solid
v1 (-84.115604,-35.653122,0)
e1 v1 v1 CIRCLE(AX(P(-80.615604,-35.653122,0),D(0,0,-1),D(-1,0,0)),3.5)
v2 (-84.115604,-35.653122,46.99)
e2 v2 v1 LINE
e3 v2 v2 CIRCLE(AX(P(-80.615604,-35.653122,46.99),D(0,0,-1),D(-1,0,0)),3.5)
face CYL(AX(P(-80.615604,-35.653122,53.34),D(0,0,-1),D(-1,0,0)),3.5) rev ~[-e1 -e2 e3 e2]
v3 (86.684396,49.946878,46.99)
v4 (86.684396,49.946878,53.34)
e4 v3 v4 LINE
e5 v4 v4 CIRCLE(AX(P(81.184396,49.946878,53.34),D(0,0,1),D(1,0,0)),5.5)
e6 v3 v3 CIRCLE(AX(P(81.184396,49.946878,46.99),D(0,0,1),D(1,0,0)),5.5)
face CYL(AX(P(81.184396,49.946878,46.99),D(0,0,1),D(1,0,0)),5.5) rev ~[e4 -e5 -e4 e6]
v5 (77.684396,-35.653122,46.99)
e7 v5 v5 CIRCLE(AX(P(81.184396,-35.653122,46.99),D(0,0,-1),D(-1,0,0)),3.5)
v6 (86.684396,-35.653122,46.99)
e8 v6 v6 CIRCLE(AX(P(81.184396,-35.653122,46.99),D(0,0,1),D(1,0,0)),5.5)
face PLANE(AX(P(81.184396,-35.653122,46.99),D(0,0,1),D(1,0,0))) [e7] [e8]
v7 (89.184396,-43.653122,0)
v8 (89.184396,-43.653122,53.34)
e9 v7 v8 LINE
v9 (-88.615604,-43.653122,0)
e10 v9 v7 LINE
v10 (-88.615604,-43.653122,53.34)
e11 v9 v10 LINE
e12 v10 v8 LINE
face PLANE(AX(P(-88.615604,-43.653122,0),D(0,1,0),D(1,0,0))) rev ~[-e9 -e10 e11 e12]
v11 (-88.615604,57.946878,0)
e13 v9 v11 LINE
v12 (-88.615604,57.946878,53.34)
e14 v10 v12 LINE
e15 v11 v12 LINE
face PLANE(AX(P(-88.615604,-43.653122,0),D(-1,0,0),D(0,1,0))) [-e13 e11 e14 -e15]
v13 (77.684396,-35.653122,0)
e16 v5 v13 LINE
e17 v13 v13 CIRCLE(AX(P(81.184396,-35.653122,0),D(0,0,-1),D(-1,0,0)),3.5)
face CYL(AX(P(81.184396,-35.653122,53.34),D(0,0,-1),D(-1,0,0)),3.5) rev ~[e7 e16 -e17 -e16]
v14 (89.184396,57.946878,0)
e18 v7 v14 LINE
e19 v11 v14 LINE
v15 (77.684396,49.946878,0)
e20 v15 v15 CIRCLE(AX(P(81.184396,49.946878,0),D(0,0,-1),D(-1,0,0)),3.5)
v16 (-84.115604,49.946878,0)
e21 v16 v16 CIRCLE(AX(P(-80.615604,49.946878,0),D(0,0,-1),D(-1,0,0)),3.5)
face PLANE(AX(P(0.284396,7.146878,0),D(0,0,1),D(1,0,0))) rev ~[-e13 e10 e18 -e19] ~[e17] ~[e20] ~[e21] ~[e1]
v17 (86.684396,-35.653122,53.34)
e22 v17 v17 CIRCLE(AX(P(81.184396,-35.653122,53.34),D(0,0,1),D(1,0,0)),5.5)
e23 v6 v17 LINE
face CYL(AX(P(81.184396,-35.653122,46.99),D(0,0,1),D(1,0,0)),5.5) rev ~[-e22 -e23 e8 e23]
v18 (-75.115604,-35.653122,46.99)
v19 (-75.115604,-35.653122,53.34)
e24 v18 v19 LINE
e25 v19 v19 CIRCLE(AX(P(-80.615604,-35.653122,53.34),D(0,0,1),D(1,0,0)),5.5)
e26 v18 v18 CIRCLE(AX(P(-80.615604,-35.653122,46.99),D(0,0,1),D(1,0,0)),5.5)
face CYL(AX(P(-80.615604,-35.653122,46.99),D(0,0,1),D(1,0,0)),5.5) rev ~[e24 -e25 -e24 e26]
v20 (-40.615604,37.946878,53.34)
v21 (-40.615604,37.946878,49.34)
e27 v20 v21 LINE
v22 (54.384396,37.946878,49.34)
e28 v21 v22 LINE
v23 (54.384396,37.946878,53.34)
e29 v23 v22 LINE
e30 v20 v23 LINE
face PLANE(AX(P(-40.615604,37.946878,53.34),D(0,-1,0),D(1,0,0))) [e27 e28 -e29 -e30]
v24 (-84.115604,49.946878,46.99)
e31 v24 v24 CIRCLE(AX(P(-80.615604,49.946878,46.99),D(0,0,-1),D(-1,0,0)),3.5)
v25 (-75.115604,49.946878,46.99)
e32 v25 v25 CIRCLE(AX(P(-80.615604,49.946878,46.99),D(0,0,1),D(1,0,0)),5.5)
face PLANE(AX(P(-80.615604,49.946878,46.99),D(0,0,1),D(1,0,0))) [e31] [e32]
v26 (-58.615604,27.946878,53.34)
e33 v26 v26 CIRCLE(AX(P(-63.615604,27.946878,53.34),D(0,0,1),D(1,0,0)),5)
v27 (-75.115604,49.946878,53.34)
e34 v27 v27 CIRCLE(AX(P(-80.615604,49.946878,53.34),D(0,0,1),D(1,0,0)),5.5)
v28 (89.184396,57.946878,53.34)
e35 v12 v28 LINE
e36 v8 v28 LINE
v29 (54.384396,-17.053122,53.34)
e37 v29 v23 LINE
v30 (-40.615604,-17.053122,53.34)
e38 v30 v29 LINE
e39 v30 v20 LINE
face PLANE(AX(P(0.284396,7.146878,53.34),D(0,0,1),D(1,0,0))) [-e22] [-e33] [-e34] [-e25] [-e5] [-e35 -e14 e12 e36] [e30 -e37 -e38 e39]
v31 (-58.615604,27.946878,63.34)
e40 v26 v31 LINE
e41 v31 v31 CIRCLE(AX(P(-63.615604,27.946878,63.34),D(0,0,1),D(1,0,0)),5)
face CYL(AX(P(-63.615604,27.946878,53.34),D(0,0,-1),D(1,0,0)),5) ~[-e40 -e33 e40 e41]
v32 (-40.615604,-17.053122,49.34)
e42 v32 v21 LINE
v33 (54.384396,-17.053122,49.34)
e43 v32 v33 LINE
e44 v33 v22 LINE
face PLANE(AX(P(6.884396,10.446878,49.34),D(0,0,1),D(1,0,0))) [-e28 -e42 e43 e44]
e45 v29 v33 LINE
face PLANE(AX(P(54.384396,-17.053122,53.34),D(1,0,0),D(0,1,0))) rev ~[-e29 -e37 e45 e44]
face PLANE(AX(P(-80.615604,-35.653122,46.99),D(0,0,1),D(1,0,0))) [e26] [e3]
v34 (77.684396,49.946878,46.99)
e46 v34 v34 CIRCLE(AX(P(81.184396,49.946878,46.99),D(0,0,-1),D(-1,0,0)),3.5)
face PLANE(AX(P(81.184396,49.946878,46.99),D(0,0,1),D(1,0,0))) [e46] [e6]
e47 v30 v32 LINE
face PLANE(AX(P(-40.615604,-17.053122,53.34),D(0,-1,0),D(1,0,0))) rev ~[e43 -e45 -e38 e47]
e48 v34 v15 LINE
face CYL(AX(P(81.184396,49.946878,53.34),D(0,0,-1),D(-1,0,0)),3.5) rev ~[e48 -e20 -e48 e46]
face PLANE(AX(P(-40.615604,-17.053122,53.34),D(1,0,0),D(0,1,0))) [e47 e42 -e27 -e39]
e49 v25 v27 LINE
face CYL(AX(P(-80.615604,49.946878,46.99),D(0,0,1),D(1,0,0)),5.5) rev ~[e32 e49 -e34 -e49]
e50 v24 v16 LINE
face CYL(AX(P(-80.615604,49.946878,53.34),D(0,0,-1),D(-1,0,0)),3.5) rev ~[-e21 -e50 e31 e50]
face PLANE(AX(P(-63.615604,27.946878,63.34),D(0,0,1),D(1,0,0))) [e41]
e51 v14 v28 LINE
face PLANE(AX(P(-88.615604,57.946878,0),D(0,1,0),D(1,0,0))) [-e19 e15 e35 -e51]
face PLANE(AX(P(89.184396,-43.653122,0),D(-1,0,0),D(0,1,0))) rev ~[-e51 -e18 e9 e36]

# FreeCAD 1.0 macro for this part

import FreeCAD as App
import Part
import Sketcher
from FreeCAD import Vector


def add_polygon(sketch, points):
    """Adds a closed chain of lines whose ends are joined by coincident constraints."""
    first, n = sketch.GeometryCount, len(points)
    for a, b in zip(points, points[1:] + points[:1]):
        sketch.addGeometry(Part.LineSegment(App.Vector(*a, 0), App.Vector(*b, 0)), False)
    for i in range(n):
        sketch.addConstraint(Sketcher.Constraint("Coincident", first + i, 2, first + (i + 1) % n, 1))

doc = App.newDocument("Part")
body = doc.addObject("PartDesign::Body", "Body")

sketch1 = body.newObject("Sketcher::SketchObject", "Sketch")
sketch1.AttachmentSupport = (doc.getObject("XY_Plane"), [""])
sketch1.MapMode = "FlatFace"
add_polygon(sketch1, [(-88.615604, 57.946878), (-88.615604, -43.653122), (89.184396, -43.653122), (89.184396, 57.946878)])
sketch1.addConstraint([
    Sketcher.Constraint("Vertical", 0),
    Sketcher.Constraint("Horizontal", 1),
    Sketcher.Constraint("Vertical", 2),
    Sketcher.Constraint("Horizontal", 3),
    Sketcher.Constraint("DistanceX", 1, 1, 1, 2, 177.8),
    Sketcher.Constraint("DistanceY", 0, 2, 0, 1, 101.6),
    Sketcher.Constraint("DistanceX", 0, 2, -1, 1, 88.615604),
    Sketcher.Constraint("DistanceY", 0, 2, -1, 1, 43.653122),
])
pad1 = body.newObject("PartDesign::Pad", "Pad")
pad1.Profile = sketch1
pad1.Length = 53.34

sketch2 = body.newObject("Sketcher::SketchObject", "Sketch001")
sketch2.AttachmentSupport = (doc.getObject("XY_Plane"), [""])
sketch2.MapMode = "FlatFace"
sketch2.AttachmentOffset = App.Placement(Vector(0, 0, 53.34), App.Rotation())
add_polygon(sketch2, [(-40.615604, 37.946878), (-40.615604, -17.053122), (54.384396, -17.053122), (54.384396, 37.946878)])
sketch2.addConstraint([
    Sketcher.Constraint("Vertical", 0),
    Sketcher.Constraint("Horizontal", 1),
    Sketcher.Constraint("Vertical", 2),
    Sketcher.Constraint("Horizontal", 3),
    Sketcher.Constraint("DistanceX", 1, 1, 1, 2, 95.0),
    Sketcher.Constraint("DistanceY", 0, 2, 0, 1, 55.0),
    Sketcher.Constraint("DistanceY", 0, 2, -1, 1, 17.053122),
    Sketcher.Constraint("DistanceX", 0, 2, -1, 1, 40.615604),
])
pocket1 = body.newObject("PartDesign::Pocket", "Pocket")
pocket1.Profile = sketch2
pocket1.Length = 4

sketch3 = body.newObject("Sketcher::SketchObject", "Sketch002")
sketch3.AttachmentSupport = (doc.getObject("XY_Plane"), [""])
sketch3.MapMode = "FlatFace"
sketch3.AttachmentOffset = App.Placement(Vector(0, 0, 53.34), App.Rotation())
sketch3.addGeometry([
    Part.Circle(Vector(-80.615604, 49.946878, 0), Vector(0, 0, 1), 3.5),
    Part.Circle(Vector(-80.615604, -35.653122, 0), Vector(0, 0, 1), 3.5),
    Part.Circle(Vector(81.184396, -35.653122, 0), Vector(0, 0, 1), 3.5),
    Part.Circle(Vector(81.184396, 49.946878, 0), Vector(0, 0, 1), 3.5),
], False)
sketch3.addConstraint([
    Sketcher.Constraint("Equal", 0, 1),
    Sketcher.Constraint("Equal", 1, 2),
    Sketcher.Constraint("Equal", 2, 3),
    Sketcher.Constraint("Horizontal", 1, 3, 2, 3),
    Sketcher.Constraint("Horizontal", 0, 3, 3, 3),
    Sketcher.Constraint("Vertical", 0, 3, 1, 3),
    Sketcher.Constraint("Vertical", 2, 3, 3, 3),
    Sketcher.Constraint("Diameter", 0, 7.0),
    Sketcher.Constraint("DistanceY", 1, 3, 0, 3, 85.6),
    Sketcher.Constraint("DistanceX", 1, 3, 2, 3, 161.8),
    Sketcher.Constraint("DistanceX", 0, 3, -1, 1, 80.615604),
    Sketcher.Constraint("DistanceY", -1, 1, 0, 3, 49.946878),
])
doc.recompute()
hole = body.newObject("PartDesign::Hole", "Hole")
hole.Profile = sketch3
hole.ThreadType = "None"
hole.Diameter = 7
hole.DepthType = "ThroughAll"
hole.HoleCutType = "Counterbore"
hole.HoleCutDiameter = 11
hole.HoleCutDepth = 6.35

sketch4 = body.newObject("Sketcher::SketchObject", "Sketch003")
sketch4.AttachmentSupport = (doc.getObject("XY_Plane"), [""])
sketch4.MapMode = "FlatFace"
sketch4.AttachmentOffset = App.Placement(Vector(0, 0, 53.34), App.Rotation())
sketch4.addGeometry(Part.Circle(Vector(-63.615604, 27.946878, 0), Vector(0, 0, 1), 5), False)
sketch4.addConstraint([
    Sketcher.Constraint("Diameter", 0, 10.0),
    Sketcher.Constraint("DistanceY", -1, 1, 0, 3, 27.946878),
    Sketcher.Constraint("DistanceX", 0, 3, -1, 1, 63.615604),
])
pad2 = body.newObject("PartDesign::Pad", "Pad001")
pad2.Profile = sketch4
pad2.Length = 10

doc.recompute()
